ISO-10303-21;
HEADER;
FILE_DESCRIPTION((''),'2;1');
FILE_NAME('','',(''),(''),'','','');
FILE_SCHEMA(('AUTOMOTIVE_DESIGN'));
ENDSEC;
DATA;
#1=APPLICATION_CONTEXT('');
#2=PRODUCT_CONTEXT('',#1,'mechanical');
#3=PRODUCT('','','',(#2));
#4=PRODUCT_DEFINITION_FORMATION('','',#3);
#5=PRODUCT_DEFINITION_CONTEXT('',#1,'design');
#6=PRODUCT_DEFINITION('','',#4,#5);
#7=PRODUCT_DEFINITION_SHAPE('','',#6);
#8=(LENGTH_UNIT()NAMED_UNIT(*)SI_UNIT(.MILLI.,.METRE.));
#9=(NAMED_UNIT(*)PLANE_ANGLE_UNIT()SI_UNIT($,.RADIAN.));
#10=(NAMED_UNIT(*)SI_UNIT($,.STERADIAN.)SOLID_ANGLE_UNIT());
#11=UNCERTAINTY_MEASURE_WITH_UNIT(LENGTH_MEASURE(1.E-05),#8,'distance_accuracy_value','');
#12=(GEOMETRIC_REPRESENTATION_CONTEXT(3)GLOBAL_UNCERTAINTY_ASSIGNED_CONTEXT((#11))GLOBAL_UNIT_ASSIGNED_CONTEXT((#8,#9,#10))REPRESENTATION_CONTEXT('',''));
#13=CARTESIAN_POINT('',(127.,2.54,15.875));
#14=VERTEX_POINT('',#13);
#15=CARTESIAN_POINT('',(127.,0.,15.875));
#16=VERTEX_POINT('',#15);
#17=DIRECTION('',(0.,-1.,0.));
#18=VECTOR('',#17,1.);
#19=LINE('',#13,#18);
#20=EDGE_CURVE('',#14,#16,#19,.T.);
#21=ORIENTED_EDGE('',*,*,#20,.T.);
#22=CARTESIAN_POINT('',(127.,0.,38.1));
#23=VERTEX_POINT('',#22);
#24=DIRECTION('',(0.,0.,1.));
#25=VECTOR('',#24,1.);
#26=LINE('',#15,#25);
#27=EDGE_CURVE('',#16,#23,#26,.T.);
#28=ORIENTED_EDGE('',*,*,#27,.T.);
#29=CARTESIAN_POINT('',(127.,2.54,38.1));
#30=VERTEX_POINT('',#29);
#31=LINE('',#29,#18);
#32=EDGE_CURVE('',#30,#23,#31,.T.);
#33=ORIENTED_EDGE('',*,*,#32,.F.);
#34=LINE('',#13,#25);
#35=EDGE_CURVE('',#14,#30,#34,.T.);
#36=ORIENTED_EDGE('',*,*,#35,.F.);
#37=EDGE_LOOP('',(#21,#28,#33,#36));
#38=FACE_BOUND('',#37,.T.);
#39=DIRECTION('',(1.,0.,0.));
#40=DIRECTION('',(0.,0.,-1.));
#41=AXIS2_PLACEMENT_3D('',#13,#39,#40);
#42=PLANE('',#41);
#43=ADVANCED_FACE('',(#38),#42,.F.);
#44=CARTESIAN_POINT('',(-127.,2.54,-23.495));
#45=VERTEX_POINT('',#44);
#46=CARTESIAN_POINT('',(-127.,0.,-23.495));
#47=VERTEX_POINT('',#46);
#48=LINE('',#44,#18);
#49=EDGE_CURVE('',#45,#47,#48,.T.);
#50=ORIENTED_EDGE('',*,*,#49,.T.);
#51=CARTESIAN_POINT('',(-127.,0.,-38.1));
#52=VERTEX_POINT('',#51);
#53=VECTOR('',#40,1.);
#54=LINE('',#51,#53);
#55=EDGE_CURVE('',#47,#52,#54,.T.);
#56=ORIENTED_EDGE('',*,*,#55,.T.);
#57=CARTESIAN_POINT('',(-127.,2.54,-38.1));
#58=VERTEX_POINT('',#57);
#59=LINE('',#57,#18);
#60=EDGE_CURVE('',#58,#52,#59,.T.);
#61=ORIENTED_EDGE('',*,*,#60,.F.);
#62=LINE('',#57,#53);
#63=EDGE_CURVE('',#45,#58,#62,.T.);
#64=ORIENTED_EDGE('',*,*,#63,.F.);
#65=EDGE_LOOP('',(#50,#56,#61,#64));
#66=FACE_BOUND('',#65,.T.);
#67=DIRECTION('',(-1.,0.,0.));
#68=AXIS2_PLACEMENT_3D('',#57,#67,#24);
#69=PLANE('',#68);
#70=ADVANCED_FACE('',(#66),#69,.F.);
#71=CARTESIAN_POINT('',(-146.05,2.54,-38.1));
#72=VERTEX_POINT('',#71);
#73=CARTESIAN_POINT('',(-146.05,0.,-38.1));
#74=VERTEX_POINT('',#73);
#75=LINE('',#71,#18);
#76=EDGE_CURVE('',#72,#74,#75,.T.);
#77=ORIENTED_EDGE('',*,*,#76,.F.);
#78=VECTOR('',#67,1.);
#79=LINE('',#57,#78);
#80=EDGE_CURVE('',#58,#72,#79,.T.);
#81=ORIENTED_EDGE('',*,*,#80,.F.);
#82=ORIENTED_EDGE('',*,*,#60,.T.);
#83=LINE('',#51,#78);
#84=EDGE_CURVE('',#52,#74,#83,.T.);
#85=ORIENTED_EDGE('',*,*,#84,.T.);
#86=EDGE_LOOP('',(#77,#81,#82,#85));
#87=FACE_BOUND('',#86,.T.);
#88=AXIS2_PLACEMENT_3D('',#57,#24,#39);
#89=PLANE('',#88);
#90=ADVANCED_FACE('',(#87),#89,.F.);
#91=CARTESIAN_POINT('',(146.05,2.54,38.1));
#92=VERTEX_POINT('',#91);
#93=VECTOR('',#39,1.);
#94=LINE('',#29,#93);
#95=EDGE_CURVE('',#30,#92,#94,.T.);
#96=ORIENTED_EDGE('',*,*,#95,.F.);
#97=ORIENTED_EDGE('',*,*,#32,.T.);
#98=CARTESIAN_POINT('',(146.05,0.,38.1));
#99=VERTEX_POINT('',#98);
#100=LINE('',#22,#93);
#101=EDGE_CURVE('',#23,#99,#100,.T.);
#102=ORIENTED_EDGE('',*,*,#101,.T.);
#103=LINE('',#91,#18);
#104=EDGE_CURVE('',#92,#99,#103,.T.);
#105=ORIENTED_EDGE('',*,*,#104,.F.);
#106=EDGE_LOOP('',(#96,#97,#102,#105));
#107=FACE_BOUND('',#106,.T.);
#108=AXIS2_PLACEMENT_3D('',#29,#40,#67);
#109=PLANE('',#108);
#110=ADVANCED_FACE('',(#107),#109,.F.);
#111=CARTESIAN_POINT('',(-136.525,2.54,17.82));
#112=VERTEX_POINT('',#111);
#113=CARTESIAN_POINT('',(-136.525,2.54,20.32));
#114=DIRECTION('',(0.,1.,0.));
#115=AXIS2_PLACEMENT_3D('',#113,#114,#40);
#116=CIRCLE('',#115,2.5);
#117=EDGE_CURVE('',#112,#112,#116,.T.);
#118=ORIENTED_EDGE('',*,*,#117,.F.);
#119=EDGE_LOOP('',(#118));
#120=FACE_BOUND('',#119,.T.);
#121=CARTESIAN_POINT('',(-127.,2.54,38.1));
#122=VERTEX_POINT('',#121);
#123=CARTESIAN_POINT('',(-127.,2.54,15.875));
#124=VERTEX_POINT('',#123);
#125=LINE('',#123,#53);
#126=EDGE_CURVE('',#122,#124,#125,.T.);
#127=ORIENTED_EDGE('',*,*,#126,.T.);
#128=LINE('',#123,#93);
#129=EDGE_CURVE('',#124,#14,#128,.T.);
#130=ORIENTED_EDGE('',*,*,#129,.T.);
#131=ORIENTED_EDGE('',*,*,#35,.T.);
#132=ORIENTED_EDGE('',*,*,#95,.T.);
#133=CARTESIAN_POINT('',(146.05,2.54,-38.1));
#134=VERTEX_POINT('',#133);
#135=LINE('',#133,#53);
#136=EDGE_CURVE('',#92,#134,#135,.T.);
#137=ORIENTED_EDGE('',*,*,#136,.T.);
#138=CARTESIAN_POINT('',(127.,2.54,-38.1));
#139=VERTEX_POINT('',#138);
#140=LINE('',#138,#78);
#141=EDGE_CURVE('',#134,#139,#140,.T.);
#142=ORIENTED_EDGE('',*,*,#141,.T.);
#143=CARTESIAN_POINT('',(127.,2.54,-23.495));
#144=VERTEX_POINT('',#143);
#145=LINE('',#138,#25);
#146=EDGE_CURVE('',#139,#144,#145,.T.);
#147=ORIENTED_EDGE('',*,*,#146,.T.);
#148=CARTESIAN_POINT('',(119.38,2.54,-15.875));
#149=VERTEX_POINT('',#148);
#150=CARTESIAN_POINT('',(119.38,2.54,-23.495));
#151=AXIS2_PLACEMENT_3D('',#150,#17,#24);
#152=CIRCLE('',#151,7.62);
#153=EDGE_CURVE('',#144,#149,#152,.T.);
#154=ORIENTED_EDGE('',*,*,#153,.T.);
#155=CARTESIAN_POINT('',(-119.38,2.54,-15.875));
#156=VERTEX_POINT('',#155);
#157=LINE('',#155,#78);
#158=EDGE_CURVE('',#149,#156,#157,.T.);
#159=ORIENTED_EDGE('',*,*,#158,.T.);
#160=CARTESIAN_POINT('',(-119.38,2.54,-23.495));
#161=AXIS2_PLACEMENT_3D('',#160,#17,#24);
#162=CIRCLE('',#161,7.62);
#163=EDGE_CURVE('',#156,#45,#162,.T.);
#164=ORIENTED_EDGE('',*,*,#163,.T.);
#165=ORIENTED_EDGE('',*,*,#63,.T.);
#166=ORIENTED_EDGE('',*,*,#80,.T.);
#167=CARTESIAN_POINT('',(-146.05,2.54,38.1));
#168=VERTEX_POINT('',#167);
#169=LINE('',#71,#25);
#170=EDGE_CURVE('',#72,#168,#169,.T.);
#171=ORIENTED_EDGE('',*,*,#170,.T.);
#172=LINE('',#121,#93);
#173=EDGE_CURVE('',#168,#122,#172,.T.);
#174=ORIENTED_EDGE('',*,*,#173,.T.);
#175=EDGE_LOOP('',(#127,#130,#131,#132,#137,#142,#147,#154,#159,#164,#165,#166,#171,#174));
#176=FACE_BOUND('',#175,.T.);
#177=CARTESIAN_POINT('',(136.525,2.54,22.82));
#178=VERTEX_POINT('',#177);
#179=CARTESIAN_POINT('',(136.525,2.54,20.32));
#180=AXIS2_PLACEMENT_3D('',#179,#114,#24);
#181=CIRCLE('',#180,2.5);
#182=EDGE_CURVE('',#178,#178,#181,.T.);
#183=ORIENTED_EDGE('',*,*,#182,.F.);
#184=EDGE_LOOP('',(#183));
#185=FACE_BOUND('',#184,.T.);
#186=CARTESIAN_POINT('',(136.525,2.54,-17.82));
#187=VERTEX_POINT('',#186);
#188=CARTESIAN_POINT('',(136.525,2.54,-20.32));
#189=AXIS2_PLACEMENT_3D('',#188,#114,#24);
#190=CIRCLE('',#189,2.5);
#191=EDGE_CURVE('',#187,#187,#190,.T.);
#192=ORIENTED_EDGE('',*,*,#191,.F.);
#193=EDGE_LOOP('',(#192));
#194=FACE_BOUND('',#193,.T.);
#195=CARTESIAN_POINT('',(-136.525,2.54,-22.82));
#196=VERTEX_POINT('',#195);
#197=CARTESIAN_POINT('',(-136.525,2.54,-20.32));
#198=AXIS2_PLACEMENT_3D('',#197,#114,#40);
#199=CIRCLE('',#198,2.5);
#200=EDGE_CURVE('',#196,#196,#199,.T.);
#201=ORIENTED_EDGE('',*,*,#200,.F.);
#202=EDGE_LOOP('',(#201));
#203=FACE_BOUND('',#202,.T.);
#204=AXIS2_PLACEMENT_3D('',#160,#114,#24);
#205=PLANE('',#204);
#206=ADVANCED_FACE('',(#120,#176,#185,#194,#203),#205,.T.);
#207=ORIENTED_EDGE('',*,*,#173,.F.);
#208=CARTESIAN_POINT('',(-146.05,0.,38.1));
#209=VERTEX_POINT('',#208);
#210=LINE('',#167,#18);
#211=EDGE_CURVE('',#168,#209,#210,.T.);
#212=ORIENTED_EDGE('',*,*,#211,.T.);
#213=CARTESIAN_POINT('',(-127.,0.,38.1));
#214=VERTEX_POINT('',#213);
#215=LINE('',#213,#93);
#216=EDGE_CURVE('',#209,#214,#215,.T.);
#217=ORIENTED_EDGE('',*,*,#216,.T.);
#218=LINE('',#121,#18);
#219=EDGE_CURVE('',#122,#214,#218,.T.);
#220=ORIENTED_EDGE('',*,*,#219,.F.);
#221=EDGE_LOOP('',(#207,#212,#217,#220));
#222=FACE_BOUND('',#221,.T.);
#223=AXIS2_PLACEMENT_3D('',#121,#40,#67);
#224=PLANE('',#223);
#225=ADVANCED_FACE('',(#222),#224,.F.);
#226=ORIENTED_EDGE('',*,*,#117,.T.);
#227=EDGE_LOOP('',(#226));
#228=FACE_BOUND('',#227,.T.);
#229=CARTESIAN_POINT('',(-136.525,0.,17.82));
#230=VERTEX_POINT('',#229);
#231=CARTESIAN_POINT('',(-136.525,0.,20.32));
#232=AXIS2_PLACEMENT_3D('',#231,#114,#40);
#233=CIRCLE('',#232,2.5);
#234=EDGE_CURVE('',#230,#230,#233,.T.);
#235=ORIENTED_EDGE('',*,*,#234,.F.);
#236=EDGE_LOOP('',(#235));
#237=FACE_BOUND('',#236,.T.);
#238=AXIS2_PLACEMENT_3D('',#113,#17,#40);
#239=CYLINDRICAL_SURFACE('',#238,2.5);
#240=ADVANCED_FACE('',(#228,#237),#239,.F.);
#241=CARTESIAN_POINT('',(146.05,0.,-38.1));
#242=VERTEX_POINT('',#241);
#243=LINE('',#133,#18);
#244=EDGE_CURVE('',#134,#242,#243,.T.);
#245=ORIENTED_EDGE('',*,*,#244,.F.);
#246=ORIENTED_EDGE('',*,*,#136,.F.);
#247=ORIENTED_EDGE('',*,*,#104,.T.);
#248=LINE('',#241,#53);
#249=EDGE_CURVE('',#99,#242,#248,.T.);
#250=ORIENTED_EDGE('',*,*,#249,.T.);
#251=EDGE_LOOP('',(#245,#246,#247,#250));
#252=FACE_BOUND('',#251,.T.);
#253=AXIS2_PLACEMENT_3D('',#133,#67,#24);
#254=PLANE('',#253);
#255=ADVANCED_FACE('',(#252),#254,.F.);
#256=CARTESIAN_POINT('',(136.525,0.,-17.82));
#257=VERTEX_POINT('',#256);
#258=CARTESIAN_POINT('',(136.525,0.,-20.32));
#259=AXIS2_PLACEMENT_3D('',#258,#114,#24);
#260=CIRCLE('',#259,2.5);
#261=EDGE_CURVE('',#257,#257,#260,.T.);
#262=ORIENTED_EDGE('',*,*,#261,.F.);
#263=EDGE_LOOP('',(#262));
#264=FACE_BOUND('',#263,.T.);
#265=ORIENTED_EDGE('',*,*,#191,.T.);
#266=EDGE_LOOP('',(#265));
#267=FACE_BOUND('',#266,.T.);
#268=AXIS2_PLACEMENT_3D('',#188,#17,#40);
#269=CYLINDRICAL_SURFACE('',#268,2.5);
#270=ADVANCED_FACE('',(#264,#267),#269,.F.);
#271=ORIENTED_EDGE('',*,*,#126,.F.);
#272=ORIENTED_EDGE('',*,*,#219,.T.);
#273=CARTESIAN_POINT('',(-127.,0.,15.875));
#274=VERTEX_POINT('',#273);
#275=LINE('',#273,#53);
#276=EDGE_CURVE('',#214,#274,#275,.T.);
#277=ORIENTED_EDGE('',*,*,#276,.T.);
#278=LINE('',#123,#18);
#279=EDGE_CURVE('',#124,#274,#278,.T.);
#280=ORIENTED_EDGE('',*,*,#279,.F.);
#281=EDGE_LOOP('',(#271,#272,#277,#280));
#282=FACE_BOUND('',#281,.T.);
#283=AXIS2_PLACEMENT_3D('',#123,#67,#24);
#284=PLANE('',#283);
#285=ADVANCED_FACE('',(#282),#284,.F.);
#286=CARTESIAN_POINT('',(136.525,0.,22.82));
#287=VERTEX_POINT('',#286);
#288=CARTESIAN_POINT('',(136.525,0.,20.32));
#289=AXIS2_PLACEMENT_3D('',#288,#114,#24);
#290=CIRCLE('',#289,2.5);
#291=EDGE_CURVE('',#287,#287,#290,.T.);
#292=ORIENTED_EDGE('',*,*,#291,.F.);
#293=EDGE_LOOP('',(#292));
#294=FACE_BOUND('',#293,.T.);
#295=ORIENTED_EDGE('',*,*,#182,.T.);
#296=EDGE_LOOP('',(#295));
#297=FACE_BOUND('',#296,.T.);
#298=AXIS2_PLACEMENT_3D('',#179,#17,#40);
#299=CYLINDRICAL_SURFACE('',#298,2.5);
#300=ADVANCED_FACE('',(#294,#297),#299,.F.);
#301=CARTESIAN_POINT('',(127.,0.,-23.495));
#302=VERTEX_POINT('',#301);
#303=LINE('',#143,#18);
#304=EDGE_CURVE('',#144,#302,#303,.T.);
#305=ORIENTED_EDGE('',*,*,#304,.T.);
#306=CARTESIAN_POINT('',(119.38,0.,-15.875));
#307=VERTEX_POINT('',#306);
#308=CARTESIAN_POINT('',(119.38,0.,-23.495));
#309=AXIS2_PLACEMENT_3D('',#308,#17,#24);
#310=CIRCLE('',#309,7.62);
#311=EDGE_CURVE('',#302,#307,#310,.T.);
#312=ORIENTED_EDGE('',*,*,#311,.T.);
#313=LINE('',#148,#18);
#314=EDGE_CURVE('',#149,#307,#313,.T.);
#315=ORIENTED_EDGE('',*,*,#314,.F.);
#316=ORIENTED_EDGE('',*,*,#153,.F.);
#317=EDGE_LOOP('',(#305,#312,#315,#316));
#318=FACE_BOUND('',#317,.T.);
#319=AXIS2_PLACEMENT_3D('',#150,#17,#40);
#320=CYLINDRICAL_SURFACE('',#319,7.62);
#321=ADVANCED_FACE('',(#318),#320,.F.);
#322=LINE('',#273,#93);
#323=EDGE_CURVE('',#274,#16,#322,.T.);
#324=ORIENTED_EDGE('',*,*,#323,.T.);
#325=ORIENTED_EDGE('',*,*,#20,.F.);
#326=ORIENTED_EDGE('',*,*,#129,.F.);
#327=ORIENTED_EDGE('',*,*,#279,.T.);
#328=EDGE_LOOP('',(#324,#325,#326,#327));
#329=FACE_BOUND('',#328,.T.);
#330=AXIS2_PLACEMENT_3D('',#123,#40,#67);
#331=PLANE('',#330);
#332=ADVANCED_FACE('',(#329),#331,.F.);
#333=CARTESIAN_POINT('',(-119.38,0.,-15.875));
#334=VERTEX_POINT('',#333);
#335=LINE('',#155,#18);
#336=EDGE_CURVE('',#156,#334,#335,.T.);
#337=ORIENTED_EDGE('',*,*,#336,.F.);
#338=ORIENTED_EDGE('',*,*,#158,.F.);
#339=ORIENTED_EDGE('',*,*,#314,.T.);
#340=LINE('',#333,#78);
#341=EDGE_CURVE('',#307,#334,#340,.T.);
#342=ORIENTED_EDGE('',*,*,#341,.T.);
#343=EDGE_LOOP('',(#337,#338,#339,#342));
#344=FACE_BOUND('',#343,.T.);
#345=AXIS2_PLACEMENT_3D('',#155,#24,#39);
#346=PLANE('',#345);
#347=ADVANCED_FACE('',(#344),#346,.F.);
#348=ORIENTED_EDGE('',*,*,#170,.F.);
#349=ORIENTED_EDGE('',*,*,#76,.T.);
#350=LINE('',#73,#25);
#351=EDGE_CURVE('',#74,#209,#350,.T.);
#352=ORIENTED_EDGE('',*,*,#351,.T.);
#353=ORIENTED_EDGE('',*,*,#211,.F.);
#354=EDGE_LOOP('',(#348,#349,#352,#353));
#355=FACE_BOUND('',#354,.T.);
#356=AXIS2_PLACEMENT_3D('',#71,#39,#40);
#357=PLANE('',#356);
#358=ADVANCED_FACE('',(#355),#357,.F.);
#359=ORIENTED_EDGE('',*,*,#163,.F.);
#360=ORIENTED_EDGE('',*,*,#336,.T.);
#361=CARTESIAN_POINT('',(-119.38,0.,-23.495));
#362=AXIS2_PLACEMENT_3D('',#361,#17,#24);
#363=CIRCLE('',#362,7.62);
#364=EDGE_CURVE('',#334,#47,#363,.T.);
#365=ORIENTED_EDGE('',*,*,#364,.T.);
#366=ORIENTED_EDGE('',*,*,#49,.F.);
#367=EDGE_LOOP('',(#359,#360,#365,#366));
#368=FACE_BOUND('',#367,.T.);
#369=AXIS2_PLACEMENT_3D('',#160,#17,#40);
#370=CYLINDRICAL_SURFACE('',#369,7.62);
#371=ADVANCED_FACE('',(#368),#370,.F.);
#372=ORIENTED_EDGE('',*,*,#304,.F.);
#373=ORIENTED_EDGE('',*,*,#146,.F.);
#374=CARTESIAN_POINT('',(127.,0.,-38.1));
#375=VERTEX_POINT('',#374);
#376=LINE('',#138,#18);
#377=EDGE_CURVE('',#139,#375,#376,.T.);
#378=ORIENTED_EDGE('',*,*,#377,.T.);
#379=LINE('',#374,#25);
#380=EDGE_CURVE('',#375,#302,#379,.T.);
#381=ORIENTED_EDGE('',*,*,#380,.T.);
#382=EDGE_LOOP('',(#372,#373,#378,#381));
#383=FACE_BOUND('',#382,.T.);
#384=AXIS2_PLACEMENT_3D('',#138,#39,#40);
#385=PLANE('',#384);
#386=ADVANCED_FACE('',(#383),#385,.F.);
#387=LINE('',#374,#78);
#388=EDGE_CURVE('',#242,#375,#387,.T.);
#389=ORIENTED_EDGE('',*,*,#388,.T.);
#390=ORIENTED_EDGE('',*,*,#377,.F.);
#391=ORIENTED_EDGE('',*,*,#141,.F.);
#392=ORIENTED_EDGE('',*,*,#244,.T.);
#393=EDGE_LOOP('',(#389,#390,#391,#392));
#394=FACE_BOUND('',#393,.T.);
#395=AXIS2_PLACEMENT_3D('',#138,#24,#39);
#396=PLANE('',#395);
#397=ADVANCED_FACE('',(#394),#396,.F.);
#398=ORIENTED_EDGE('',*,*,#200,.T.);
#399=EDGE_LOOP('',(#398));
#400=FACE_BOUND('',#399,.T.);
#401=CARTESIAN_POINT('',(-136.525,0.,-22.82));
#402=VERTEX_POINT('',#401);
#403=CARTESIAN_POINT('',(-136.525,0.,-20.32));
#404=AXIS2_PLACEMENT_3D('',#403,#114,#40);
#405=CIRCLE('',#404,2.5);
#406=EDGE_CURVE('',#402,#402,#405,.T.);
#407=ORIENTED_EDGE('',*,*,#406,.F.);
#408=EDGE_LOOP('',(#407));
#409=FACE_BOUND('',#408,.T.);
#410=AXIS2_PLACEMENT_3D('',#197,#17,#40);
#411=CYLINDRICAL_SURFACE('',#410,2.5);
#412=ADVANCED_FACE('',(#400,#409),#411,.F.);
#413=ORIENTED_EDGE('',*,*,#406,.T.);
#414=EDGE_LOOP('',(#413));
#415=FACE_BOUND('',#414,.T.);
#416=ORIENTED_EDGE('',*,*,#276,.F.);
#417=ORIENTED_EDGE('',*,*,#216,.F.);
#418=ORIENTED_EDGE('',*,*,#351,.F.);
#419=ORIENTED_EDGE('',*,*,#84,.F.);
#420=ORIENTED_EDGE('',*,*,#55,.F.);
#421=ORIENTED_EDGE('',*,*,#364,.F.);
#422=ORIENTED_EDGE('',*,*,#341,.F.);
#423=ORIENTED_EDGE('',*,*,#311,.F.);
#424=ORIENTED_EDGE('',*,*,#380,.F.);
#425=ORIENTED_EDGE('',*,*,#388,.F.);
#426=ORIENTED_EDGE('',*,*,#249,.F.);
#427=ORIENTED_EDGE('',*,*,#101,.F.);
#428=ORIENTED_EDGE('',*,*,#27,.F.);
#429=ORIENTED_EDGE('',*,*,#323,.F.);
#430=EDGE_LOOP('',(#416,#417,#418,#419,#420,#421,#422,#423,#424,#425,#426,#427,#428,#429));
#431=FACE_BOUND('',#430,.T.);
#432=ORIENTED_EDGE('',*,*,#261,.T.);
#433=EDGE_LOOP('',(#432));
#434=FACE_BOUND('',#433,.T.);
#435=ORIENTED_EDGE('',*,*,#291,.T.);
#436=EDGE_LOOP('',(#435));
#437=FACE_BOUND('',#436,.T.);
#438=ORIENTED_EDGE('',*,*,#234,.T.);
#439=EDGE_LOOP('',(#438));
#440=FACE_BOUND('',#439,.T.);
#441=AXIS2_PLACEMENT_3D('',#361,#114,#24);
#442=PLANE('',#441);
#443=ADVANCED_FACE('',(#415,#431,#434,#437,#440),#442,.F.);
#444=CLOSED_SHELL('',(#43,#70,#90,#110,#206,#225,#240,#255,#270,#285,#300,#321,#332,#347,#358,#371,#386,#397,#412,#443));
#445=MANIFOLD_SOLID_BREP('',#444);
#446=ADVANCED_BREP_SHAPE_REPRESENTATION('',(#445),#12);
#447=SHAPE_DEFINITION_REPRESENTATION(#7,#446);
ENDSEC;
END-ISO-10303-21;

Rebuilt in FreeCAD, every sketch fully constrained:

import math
import FreeCAD as App
import Part
import Sketcher
from FreeCAD import Vector
Q = App.Units.Quantity

doc = App.newDocument("Part")
body = doc.addObject("PartDesign::Body", "Body")

# Sketch on XZ plane
sketch1 = body.newObject("Sketcher::SketchObject", "Sketch")
sketch1.AttachmentSupport = (doc.getObject("XZ_Plane"), [""])
sketch1.MapMode = "FlatFace"
sketch1.addGeometry([
    Part.LineSegment(Vector(-127, -23.495, 0), Vector(-127, -38.1, 0)),  # 0
    Part.LineSegment(Vector(-127, -38.1, 0), Vector(-146.05, -38.1, 0)),  # 1
    Part.LineSegment(Vector(-146.05, -38.1, 0), Vector(-146.05, 38.1, 0)),  # 2
    Part.LineSegment(Vector(-146.05, 38.1, 0), Vector(-127, 38.1, 0)),  # 3
    Part.LineSegment(Vector(-127, 38.1, 0), Vector(-127, 15.875, 0)),  # 4
    Part.LineSegment(Vector(-127, 15.875, 0), Vector(127, 15.875, 0)),  # 5
    Part.LineSegment(Vector(127, 15.875, 0), Vector(127, 38.1, 0)),  # 6
    Part.LineSegment(Vector(127, 38.1, 0), Vector(146.05, 38.1, 0)),  # 7
    Part.LineSegment(Vector(146.05, 38.1, 0), Vector(146.05, -38.1, 0)),  # 8
    Part.LineSegment(Vector(146.05, -38.1, 0), Vector(127, -38.1, 0)),  # 9
    Part.LineSegment(Vector(127, -38.1, 0), Vector(127, -23.495, 0)),  # 10
    Part.ArcOfCircle(Part.Circle(Vector(119.38, -23.495, 0), Vector(0, 0, 1), 7.62), math.radians(0), math.radians(90)),  # 11
    Part.LineSegment(Vector(119.38, -15.875, 0), Vector(-119.38, -15.875, 0)),  # 12
    Part.ArcOfCircle(Part.Circle(Vector(-119.38, -23.495, 0), Vector(0, 0, 1), 7.62), math.radians(90), math.radians(180)),  # 13
    Part.Circle(Vector(136.525, 20.32, 0), Vector(0, 0, 1), 2.5),  # 14
    Part.Circle(Vector(-136.525, 20.32, 0), Vector(0, 0, 1), 2.5),  # 15
    Part.Circle(Vector(136.525, -20.32, 0), Vector(0, 0, 1), 2.5),  # 16
    Part.Circle(Vector(-136.525, -20.32, 0), Vector(0, 0, 1), 2.5),  # 17
], False)
sketch1.addConstraint([
    Sketcher.Constraint("Coincident", 0, 2, 1, 1),
    Sketcher.Constraint("Coincident", 1, 2, 2, 1),
    Sketcher.Constraint("Coincident", 2, 2, 3, 1),
    Sketcher.Constraint("Coincident", 3, 2, 4, 1),
    Sketcher.Constraint("Coincident", 4, 2, 5, 1),
    Sketcher.Constraint("Coincident", 5, 2, 6, 1),
    Sketcher.Constraint("Coincident", 6, 2, 7, 1),
    Sketcher.Constraint("Coincident", 7, 2, 8, 1),
    Sketcher.Constraint("Coincident", 8, 2, 9, 1),
    Sketcher.Constraint("Coincident", 9, 2, 10, 1),
    Sketcher.Constraint("Tangent", 10, 2, 11, 1),
    Sketcher.Constraint("Tangent", 11, 2, 12, 1),
    Sketcher.Constraint("Tangent", 12, 2, 13, 1),
    Sketcher.Constraint("Tangent", 13, 2, 0, 1),
    Sketcher.Constraint("Vertical", 0),
    Sketcher.Constraint("Horizontal", 1),
    Sketcher.Constraint("Vertical", 2),
    Sketcher.Constraint("Horizontal", 3),
    Sketcher.Constraint("Vertical", 4),
    Sketcher.Constraint("Horizontal", 5),
    Sketcher.Constraint("Vertical", 6),
    Sketcher.Constraint("Horizontal", 7),
    Sketcher.Constraint("Vertical", 8),
    Sketcher.Constraint("Horizontal", 9),
    Sketcher.Constraint("Vertical", 10),
    Sketcher.Constraint("Horizontal", 12),
    Sketcher.Constraint("Equal", 11, 13),
    Sketcher.Constraint("Equal", 14, 15),
    Sketcher.Constraint("Equal", 15, 16),
    Sketcher.Constraint("Equal", 16, 17),
    Sketcher.Constraint("Symmetric", 15, 3, 16, 3, -1, 1),
    Sketcher.Constraint("Symmetric", 14, 3, 17, 3, -1, 1),
    Sketcher.Constraint("Symmetric", 0, 2, 6, 2, -1, 1),
    Sketcher.Constraint("Symmetric", 2, 2, 8, 2, -1, 1),
    Sketcher.Constraint("Symmetric", 14, 3, 15, 3, -2),
    Sketcher.Constraint("Symmetric", 3, 2, 6, 2, -2),
    Sketcher.Constraint("Vertical", 6, 2, 9, 2),
    Sketcher.Constraint("Radius", 11, Q("0.3 in")),
    Sketcher.Constraint("DistanceX", 5, 1, 5, 2, Q("10 in")),
    Sketcher.Constraint("DistanceY", 2, 1, 2, 2, Q("3 in")),
    Sketcher.Constraint("DistanceX", 1, 2, 1, 1, Q("0.75 in")),
    Sketcher.Constraint("DistanceY", -1, 1, 14, 3, Q("0.8 in")),
    Sketcher.Constraint("Diameter", 14, Q("5 mm")),
    Sketcher.Constraint("DistanceY", 0, 2, 0, 1, Q("0.575 in")),
    Sketcher.Constraint("DistanceY", 4, 2, 4, 1, Q("0.875 in")),
    Sketcher.Constraint("DistanceX", 15, 3, 14, 3, Q("10.75 in")),
])
pad1 = body.newObject("PartDesign::Pad", "Pad")
pad1.Profile = sketch1
pad1.Length = Q("0.1 in")
pad1.Reversed = True

doc.recompute()
